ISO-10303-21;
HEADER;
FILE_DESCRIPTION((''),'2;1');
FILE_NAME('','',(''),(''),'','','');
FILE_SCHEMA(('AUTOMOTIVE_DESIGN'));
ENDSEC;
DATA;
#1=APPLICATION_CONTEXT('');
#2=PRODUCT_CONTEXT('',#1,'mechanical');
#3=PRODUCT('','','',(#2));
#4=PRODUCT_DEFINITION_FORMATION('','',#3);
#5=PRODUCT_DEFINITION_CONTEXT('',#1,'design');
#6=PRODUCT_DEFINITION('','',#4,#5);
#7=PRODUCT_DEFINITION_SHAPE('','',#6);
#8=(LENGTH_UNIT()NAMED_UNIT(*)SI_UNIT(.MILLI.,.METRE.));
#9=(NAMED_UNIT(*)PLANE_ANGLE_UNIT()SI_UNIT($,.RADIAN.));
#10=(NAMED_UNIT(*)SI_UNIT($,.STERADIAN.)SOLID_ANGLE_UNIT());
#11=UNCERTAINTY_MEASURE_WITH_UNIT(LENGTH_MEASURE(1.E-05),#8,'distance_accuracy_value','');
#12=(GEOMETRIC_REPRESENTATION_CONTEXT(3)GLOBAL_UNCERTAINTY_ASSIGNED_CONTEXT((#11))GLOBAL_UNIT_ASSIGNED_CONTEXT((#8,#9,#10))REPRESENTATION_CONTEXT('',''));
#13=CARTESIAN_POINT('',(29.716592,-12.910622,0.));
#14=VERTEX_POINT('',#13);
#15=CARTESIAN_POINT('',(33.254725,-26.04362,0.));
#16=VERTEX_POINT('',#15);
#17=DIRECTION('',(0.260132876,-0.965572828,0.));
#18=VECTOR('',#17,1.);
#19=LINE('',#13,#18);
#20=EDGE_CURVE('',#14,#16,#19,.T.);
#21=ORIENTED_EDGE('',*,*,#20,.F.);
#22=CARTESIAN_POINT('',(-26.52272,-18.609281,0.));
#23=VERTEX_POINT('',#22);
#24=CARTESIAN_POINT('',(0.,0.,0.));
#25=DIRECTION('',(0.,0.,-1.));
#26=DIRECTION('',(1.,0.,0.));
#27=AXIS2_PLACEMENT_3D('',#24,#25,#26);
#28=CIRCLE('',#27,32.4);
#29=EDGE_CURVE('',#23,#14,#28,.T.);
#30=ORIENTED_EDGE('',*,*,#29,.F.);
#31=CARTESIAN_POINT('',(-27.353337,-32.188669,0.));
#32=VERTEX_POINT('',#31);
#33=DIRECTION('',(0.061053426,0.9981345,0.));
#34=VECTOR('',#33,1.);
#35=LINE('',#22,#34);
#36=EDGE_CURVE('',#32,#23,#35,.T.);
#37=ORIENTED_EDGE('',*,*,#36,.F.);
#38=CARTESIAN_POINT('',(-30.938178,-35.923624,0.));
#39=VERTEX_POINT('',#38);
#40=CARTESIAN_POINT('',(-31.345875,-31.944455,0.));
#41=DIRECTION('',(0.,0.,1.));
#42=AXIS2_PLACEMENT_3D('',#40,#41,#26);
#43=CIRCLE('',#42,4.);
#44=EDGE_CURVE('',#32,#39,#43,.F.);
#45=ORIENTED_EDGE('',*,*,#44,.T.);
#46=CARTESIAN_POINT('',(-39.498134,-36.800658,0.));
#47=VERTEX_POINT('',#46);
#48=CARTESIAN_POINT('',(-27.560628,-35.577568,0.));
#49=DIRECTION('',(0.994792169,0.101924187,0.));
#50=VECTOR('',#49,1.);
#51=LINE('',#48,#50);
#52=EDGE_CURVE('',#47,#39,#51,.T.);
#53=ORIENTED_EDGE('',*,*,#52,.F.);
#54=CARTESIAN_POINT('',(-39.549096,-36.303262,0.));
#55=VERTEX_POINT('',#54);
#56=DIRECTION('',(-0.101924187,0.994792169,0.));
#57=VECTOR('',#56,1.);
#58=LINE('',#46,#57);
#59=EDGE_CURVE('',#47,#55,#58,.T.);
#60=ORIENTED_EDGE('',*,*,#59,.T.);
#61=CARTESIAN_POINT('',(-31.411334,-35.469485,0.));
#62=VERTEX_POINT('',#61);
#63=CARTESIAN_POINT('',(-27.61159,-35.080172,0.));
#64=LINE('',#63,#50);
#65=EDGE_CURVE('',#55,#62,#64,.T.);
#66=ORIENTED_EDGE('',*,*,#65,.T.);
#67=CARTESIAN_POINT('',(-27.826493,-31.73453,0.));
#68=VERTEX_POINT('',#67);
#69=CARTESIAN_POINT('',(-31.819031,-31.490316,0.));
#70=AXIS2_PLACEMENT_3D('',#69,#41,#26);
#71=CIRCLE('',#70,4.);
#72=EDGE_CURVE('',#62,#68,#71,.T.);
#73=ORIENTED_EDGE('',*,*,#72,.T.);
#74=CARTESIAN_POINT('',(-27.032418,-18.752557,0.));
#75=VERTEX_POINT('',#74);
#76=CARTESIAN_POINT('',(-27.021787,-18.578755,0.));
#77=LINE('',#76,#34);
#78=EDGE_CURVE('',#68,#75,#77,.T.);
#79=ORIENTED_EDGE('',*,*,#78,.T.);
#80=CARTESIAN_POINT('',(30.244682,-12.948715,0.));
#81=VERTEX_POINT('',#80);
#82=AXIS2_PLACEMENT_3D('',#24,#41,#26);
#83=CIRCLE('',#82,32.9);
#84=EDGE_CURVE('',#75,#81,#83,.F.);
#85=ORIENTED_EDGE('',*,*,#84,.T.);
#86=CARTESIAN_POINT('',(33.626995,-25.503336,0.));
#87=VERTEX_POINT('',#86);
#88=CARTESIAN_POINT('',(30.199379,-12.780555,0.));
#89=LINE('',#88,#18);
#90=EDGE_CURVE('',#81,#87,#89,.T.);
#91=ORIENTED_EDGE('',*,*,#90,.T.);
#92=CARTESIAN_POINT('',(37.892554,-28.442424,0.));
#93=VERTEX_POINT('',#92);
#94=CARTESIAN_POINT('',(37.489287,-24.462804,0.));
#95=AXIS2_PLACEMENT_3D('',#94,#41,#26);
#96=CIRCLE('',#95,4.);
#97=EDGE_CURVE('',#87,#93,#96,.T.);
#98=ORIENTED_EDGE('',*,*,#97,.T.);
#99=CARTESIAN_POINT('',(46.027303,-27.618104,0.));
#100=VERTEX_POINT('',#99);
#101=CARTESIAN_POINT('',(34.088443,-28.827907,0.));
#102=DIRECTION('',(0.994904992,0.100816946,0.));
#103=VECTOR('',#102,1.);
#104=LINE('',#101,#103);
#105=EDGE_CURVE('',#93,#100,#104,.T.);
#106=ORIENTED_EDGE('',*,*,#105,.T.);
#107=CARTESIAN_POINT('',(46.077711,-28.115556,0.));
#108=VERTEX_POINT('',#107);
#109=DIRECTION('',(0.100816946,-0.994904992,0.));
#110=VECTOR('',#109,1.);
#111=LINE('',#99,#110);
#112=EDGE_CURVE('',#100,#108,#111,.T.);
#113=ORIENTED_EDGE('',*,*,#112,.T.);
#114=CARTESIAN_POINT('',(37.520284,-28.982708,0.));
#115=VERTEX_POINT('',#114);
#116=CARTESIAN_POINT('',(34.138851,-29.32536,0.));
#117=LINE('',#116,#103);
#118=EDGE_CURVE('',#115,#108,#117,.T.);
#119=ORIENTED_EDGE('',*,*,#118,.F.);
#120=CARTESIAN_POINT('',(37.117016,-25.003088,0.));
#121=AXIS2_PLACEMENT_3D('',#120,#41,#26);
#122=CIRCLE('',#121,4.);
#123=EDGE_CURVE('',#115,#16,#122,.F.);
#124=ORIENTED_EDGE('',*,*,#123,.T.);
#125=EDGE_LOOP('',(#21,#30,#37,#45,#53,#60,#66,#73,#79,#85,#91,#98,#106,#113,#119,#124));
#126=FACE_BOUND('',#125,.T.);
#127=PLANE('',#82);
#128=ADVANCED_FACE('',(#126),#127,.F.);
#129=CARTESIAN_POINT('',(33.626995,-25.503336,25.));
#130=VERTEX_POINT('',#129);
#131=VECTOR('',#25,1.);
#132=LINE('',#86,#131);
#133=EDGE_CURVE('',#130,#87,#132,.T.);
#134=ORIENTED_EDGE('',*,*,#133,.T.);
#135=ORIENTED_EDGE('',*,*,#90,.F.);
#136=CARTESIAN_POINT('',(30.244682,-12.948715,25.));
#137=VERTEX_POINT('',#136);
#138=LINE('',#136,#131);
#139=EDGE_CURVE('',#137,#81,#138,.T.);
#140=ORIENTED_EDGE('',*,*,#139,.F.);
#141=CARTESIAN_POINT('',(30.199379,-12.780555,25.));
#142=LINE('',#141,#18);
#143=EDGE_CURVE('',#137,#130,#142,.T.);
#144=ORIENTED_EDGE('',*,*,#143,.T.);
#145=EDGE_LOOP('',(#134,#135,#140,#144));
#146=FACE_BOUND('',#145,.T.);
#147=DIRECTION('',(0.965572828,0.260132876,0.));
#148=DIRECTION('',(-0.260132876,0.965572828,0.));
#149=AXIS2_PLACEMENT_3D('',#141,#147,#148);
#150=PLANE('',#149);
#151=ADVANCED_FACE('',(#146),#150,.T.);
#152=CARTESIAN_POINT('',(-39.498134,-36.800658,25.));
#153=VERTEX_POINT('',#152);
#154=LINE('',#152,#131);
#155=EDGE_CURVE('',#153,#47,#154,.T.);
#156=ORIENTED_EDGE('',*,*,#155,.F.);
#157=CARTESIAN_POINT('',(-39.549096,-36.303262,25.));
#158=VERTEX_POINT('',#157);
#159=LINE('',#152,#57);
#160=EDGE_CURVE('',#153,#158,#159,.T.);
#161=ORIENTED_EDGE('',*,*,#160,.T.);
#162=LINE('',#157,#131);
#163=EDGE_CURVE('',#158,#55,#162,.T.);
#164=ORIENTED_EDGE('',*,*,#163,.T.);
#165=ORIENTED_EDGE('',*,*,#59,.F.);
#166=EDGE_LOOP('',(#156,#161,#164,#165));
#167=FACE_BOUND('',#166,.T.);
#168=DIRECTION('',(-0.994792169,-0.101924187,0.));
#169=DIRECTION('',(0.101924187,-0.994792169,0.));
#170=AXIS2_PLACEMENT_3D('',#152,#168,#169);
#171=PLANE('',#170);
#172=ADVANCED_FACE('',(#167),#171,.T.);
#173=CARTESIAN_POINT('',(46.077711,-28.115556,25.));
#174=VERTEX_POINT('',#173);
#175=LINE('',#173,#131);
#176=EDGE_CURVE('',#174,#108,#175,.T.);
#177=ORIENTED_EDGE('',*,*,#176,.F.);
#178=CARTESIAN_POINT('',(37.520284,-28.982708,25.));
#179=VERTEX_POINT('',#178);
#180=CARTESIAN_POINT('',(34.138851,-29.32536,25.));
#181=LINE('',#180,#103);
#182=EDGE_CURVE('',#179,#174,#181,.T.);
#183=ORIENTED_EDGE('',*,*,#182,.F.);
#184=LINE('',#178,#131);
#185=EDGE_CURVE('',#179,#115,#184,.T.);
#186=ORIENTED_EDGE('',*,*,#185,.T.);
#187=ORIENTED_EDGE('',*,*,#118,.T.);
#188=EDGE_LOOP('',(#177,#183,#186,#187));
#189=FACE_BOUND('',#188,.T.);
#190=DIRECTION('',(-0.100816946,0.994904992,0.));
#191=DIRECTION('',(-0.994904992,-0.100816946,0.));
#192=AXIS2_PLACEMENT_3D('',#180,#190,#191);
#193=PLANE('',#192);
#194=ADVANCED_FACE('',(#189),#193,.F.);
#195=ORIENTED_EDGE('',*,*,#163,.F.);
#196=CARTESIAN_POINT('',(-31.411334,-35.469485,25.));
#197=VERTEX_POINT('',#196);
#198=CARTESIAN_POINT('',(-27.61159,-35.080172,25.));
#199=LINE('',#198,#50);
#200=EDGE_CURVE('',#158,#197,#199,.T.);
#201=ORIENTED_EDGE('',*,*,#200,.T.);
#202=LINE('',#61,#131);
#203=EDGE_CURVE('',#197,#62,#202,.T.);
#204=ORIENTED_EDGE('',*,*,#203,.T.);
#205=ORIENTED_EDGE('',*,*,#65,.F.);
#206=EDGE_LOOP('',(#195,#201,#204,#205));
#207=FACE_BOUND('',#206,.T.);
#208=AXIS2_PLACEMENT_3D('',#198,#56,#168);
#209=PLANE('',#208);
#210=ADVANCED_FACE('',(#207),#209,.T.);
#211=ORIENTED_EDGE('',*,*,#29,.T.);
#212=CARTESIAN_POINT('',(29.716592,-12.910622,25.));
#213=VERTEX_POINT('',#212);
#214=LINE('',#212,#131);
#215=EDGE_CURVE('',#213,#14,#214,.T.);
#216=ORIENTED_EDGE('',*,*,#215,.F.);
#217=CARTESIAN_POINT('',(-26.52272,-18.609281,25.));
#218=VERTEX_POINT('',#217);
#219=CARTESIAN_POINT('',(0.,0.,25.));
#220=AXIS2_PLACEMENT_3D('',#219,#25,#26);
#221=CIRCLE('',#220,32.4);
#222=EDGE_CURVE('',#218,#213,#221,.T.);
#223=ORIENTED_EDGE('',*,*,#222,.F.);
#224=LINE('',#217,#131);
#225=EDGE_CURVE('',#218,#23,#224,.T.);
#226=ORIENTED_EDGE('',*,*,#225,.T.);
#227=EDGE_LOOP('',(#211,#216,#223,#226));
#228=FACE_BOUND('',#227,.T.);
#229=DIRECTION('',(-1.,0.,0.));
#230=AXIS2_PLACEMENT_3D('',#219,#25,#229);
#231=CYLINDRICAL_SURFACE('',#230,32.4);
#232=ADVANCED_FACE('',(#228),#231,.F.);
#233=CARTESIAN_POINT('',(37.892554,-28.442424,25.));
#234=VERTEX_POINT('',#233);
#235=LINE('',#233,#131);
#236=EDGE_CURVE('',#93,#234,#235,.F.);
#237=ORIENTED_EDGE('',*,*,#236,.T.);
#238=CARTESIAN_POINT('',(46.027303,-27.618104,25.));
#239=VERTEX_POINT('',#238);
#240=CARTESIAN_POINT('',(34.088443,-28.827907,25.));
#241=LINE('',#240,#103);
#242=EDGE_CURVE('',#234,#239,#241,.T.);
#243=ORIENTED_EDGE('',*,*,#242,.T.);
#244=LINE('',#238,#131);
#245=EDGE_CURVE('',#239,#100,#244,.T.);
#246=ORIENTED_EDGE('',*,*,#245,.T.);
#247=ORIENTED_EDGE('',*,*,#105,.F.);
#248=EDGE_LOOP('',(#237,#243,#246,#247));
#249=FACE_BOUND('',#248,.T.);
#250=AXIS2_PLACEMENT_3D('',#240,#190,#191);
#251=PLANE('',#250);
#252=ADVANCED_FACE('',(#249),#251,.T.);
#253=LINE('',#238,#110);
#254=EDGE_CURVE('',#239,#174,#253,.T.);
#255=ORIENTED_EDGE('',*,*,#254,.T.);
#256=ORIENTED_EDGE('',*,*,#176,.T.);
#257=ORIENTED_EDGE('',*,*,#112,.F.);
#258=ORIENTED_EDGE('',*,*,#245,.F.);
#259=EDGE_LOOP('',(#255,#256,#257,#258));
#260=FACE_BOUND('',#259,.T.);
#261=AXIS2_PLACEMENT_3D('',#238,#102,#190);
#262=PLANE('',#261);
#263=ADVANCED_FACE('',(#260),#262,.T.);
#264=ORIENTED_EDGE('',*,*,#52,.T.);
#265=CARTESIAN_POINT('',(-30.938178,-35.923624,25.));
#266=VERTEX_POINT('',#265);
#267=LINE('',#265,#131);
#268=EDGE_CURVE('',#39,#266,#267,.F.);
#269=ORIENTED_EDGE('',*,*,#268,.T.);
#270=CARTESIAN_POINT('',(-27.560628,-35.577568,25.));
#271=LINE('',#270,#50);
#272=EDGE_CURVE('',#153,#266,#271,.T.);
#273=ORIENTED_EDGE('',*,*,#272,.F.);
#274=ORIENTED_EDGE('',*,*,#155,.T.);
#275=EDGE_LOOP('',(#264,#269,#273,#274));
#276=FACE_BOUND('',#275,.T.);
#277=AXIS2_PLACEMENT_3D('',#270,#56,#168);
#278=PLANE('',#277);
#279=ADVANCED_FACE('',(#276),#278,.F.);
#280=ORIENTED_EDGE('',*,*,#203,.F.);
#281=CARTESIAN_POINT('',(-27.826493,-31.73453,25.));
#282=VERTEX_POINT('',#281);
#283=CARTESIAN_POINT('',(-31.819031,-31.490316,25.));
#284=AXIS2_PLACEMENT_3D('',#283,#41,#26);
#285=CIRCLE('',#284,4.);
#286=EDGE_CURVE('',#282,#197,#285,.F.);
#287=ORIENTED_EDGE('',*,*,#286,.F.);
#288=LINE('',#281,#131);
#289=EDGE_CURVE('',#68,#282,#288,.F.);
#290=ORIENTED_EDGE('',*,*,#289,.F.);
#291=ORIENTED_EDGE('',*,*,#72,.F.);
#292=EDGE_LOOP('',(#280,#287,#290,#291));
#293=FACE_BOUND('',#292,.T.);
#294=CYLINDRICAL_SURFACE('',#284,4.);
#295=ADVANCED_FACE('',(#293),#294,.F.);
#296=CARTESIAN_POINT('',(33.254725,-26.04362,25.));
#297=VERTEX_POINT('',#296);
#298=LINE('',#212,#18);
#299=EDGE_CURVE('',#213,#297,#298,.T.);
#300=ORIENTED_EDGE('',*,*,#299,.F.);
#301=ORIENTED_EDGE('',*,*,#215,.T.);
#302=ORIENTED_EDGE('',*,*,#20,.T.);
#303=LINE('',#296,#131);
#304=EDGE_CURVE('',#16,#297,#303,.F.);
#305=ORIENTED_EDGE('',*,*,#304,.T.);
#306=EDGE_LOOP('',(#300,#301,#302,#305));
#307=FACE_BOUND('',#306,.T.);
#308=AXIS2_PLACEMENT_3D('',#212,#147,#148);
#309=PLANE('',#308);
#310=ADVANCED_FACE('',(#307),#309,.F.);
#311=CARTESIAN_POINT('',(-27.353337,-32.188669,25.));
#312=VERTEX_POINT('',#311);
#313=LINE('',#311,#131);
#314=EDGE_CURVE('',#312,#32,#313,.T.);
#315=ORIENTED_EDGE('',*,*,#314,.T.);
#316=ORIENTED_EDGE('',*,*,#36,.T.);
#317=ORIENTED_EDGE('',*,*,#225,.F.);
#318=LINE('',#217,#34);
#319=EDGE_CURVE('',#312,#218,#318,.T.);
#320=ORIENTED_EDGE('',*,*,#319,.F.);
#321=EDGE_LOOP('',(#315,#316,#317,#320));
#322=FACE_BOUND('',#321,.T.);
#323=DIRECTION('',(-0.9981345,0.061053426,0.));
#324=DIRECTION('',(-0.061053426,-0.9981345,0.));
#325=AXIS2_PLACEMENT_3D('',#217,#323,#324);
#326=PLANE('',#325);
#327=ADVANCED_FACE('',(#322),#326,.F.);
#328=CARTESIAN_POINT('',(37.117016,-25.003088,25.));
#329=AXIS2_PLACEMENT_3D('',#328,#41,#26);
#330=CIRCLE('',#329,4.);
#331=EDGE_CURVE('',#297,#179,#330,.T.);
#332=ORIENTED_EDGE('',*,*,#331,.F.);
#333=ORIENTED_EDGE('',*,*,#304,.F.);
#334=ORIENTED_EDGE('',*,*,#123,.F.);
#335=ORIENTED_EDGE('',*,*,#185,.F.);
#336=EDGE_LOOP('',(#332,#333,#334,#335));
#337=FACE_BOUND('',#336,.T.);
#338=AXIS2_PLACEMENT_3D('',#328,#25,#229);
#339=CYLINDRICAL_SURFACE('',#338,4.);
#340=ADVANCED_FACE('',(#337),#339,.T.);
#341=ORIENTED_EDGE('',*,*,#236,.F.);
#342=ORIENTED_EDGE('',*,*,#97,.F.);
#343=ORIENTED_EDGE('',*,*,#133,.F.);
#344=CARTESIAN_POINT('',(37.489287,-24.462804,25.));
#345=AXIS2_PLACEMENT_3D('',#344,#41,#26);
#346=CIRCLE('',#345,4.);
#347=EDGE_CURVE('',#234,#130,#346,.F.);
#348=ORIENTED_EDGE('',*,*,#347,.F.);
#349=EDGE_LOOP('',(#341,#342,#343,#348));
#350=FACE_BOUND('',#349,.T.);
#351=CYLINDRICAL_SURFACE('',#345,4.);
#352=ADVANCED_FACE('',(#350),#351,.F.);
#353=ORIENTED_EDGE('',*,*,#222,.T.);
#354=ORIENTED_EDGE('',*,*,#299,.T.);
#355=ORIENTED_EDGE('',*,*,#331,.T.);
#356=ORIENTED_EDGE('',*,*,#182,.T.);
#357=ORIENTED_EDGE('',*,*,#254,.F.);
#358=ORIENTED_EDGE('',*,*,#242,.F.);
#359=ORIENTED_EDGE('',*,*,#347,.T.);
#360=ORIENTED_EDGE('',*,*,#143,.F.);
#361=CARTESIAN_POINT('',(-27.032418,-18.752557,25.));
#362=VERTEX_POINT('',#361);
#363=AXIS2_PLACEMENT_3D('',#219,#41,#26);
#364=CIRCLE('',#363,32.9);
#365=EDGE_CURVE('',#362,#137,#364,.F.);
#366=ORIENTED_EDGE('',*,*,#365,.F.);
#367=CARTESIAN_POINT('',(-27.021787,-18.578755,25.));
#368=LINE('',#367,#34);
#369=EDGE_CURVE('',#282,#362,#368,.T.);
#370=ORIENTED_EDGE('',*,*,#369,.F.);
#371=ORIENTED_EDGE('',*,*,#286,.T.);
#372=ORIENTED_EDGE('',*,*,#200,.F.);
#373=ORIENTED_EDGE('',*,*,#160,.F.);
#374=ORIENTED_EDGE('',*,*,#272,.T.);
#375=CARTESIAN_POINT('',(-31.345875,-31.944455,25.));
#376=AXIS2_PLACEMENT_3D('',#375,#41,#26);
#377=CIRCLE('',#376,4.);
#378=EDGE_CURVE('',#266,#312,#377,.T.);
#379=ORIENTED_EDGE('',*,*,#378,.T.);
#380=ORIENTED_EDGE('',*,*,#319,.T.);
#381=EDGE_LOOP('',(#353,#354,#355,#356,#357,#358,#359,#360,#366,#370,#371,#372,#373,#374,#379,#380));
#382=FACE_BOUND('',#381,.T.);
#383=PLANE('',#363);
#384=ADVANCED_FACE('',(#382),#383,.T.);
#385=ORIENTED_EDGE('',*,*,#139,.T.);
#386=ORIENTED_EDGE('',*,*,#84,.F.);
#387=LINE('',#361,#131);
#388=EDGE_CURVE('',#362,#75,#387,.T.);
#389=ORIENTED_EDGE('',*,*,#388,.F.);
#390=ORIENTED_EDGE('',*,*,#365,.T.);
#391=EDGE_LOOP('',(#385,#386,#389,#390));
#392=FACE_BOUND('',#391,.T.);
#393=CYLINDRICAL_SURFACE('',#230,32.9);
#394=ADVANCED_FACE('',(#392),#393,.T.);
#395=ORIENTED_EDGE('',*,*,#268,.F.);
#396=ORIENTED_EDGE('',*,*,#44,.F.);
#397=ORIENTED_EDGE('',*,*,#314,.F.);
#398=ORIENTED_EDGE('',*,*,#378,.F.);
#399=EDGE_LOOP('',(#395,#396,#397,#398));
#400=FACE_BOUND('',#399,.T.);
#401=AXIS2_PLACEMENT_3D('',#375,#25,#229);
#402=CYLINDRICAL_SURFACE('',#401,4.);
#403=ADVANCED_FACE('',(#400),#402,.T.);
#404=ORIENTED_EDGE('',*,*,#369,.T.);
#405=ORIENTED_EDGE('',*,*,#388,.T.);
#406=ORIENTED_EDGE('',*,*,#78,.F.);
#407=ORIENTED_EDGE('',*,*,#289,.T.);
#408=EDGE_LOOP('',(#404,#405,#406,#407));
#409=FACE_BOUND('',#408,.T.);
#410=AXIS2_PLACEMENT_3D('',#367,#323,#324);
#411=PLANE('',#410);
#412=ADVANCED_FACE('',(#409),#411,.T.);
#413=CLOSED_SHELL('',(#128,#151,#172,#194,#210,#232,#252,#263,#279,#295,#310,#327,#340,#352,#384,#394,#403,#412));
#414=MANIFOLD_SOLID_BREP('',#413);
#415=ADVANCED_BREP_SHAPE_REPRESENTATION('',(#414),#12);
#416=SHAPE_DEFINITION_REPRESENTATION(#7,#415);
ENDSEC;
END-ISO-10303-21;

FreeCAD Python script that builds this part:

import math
import FreeCAD as App
import Part
import Sketcher
from FreeCAD import Vector
Q = App.Units.Quantity


def edges_at(feature, points):
    """Names of the edges that pass closest to the given points."""
    edges = feature.Shape.Edges
    near = lambda p: min(range(len(edges)), key=lambda i: edges[i].distToShape(Part.Vertex(*p))[0])
    return sorted({f"Edge{near(p) + 1}" for p in points})

doc = App.newDocument("Part")
body = doc.addObject("PartDesign::Body", "Body")

# Sketch on XY plane
sketch1 = body.newObject("Sketcher::SketchObject", "Sketch")
sketch1.AttachmentSupport = (doc.getObject("XY_Plane"), [""])
sketch1.MapMode = "FlatFace"
sketch1.addGeometry([
    Part.LineSegment(Vector(34.14, -29.33, 0), Vector(46.08, -28.12, 0)),  # 0
    Part.LineSegment(Vector(46.08, -28.12, 0), Vector(46.03, -27.62, 0)),  # 1
    Part.LineSegment(Vector(46.03, -27.62, 0), Vector(34.51, -28.79, 0)),  # 2
    Part.LineSegment(Vector(34.51, -28.79, 0), Vector(30.24, -12.95, 0)),  # 3
    Part.ArcOfCircle(Part.Circle(Vector(0, 0, 0), Vector(0, 0, 1), 32.9), math.radians(-23), math.radians(215)),  # 4
    Part.LineSegment(Vector(-27.03, -18.75, 0), Vector(-28.03, -35.12, 0)),  # 5
    Part.LineSegment(Vector(-28.03, -35.12, 0), Vector(-39.55, -36.3, 0)),  # 6
    Part.LineSegment(Vector(-39.55, -36.3, 0), Vector(-39.5, -36.8, 0)),  # 7
    Part.LineSegment(Vector(-39.5, -36.8, 0), Vector(-27.56, -35.58, 0)),  # 8
    Part.LineSegment(Vector(-27.56, -35.58, 0), Vector(-26.52, -18.61, 0)),  # 9
    Part.ArcOfCircle(Part.Circle(Vector(0, 0, 0), Vector(0, 0, 1), 32.4), math.radians(-23), math.radians(215)),  # 10
    Part.LineSegment(Vector(29.72, -12.91, 0), Vector(34.14, -29.33, 0)),  # 11
], False)
sketch1.addConstraint([
    Sketcher.Constraint("Coincident", 0, 2, 1, 1),
    Sketcher.Constraint("Coincident", 1, 2, 2, 1),
    Sketcher.Constraint("Coincident", 2, 2, 3, 1),
    Sketcher.Constraint("Coincident", 3, 2, 4, 1),
    Sketcher.Constraint("Coincident", 4, 2, 5, 1),
    Sketcher.Constraint("Coincident", 5, 2, 6, 1),
    Sketcher.Constraint("Coincident", 6, 2, 7, 1),
    Sketcher.Constraint("Coincident", 7, 2, 8, 1),
    Sketcher.Constraint("Coincident", 8, 2, 9, 1),
    Sketcher.Constraint("Coincident", 9, 2, 10, 2),
    Sketcher.Constraint("Coincident", 10, 1, 11, 1),
    Sketcher.Constraint("Coincident", 11, 2, 0, 1),
    Sketcher.Constraint("Coincident", 4, 3, -1, 1),
    Sketcher.Constraint("Coincident", 10, 3, -1, 1),
    Sketcher.Constraint("Perpendicular", 0, 1),
    Sketcher.Constraint("Perpendicular", 1, 2),
    Sketcher.Constraint("Perpendicular", 6, 7),
    Sketcher.Constraint("Perpendicular", 7, 8),
    Sketcher.Constraint("Parallel", 5, 9),
    Sketcher.Constraint("Parallel", 3, 11),
    Sketcher.Constraint("Equal", 1, 7),
    Sketcher.Constraint("Equal", 0, 8),
    Sketcher.Constraint("Equal", 9, 11),
    Sketcher.Constraint("Radius", 4, Q("32.9 mm")),
    Sketcher.Constraint("Radius", 10, Q("32.4 mm")),
    Sketcher.Constraint("Distance", 0, Q("12 mm")),
    Sketcher.Constraint("Distance", 9, Q("17 mm")),
    Sketcher.Constraint("Distance", 1, Q("0.5 mm")),
    Sketcher.Constraint("Angle", 6, Q("-174.150015 deg")),
    Sketcher.Constraint("Distance", 3, Q("16.401001 mm")),
    Sketcher.Constraint("DistanceX", 4, 2, 3, 2, Q("57.2771 mm")),
    Sketcher.Constraint("DistanceY", 7, 2, 4, 2, Q("18.048101 mm")),
    Sketcher.Constraint("Distance", 5, Q("16.401469 mm")),
    Sketcher.Constraint("DistanceX", -1, 1, 0, 2, Q("46.077711 mm")),
    Sketcher.Constraint("DistanceX", -1, 1, 2, 2, Q("34.511122 mm")),
    Sketcher.Constraint("DistanceY", 5, 2, -1, 1, Q("35.123429 mm")),
])
pad1 = body.newObject("PartDesign::Pad", "Pad")
pad1.Profile = sketch1
pad1.Length = 25
doc.recompute()

fillet = body.newObject("PartDesign::Fillet", "Fillet")
fillet.Base = (pad1, edges_at(pad1, [(-28.034, -35.123, 12.5)]))
fillet.Radius = 4
doc.recompute()

fillet2 = body.newObject("PartDesign::Fillet", "Fillet001")
fillet2.Base = (fillet, edges_at(fillet, [(-27.561, -35.578, 12.5)]))
fillet2.Radius = 4
doc.recompute()

fillet3 = body.newObject("PartDesign::Fillet", "Fillet002")
fillet3.Base = (fillet2, edges_at(fillet2, [(34.139, -29.325, 12.5), (34.511, -28.785, 12.5)]))
fillet3.Radius = 4

doc.recompute()
